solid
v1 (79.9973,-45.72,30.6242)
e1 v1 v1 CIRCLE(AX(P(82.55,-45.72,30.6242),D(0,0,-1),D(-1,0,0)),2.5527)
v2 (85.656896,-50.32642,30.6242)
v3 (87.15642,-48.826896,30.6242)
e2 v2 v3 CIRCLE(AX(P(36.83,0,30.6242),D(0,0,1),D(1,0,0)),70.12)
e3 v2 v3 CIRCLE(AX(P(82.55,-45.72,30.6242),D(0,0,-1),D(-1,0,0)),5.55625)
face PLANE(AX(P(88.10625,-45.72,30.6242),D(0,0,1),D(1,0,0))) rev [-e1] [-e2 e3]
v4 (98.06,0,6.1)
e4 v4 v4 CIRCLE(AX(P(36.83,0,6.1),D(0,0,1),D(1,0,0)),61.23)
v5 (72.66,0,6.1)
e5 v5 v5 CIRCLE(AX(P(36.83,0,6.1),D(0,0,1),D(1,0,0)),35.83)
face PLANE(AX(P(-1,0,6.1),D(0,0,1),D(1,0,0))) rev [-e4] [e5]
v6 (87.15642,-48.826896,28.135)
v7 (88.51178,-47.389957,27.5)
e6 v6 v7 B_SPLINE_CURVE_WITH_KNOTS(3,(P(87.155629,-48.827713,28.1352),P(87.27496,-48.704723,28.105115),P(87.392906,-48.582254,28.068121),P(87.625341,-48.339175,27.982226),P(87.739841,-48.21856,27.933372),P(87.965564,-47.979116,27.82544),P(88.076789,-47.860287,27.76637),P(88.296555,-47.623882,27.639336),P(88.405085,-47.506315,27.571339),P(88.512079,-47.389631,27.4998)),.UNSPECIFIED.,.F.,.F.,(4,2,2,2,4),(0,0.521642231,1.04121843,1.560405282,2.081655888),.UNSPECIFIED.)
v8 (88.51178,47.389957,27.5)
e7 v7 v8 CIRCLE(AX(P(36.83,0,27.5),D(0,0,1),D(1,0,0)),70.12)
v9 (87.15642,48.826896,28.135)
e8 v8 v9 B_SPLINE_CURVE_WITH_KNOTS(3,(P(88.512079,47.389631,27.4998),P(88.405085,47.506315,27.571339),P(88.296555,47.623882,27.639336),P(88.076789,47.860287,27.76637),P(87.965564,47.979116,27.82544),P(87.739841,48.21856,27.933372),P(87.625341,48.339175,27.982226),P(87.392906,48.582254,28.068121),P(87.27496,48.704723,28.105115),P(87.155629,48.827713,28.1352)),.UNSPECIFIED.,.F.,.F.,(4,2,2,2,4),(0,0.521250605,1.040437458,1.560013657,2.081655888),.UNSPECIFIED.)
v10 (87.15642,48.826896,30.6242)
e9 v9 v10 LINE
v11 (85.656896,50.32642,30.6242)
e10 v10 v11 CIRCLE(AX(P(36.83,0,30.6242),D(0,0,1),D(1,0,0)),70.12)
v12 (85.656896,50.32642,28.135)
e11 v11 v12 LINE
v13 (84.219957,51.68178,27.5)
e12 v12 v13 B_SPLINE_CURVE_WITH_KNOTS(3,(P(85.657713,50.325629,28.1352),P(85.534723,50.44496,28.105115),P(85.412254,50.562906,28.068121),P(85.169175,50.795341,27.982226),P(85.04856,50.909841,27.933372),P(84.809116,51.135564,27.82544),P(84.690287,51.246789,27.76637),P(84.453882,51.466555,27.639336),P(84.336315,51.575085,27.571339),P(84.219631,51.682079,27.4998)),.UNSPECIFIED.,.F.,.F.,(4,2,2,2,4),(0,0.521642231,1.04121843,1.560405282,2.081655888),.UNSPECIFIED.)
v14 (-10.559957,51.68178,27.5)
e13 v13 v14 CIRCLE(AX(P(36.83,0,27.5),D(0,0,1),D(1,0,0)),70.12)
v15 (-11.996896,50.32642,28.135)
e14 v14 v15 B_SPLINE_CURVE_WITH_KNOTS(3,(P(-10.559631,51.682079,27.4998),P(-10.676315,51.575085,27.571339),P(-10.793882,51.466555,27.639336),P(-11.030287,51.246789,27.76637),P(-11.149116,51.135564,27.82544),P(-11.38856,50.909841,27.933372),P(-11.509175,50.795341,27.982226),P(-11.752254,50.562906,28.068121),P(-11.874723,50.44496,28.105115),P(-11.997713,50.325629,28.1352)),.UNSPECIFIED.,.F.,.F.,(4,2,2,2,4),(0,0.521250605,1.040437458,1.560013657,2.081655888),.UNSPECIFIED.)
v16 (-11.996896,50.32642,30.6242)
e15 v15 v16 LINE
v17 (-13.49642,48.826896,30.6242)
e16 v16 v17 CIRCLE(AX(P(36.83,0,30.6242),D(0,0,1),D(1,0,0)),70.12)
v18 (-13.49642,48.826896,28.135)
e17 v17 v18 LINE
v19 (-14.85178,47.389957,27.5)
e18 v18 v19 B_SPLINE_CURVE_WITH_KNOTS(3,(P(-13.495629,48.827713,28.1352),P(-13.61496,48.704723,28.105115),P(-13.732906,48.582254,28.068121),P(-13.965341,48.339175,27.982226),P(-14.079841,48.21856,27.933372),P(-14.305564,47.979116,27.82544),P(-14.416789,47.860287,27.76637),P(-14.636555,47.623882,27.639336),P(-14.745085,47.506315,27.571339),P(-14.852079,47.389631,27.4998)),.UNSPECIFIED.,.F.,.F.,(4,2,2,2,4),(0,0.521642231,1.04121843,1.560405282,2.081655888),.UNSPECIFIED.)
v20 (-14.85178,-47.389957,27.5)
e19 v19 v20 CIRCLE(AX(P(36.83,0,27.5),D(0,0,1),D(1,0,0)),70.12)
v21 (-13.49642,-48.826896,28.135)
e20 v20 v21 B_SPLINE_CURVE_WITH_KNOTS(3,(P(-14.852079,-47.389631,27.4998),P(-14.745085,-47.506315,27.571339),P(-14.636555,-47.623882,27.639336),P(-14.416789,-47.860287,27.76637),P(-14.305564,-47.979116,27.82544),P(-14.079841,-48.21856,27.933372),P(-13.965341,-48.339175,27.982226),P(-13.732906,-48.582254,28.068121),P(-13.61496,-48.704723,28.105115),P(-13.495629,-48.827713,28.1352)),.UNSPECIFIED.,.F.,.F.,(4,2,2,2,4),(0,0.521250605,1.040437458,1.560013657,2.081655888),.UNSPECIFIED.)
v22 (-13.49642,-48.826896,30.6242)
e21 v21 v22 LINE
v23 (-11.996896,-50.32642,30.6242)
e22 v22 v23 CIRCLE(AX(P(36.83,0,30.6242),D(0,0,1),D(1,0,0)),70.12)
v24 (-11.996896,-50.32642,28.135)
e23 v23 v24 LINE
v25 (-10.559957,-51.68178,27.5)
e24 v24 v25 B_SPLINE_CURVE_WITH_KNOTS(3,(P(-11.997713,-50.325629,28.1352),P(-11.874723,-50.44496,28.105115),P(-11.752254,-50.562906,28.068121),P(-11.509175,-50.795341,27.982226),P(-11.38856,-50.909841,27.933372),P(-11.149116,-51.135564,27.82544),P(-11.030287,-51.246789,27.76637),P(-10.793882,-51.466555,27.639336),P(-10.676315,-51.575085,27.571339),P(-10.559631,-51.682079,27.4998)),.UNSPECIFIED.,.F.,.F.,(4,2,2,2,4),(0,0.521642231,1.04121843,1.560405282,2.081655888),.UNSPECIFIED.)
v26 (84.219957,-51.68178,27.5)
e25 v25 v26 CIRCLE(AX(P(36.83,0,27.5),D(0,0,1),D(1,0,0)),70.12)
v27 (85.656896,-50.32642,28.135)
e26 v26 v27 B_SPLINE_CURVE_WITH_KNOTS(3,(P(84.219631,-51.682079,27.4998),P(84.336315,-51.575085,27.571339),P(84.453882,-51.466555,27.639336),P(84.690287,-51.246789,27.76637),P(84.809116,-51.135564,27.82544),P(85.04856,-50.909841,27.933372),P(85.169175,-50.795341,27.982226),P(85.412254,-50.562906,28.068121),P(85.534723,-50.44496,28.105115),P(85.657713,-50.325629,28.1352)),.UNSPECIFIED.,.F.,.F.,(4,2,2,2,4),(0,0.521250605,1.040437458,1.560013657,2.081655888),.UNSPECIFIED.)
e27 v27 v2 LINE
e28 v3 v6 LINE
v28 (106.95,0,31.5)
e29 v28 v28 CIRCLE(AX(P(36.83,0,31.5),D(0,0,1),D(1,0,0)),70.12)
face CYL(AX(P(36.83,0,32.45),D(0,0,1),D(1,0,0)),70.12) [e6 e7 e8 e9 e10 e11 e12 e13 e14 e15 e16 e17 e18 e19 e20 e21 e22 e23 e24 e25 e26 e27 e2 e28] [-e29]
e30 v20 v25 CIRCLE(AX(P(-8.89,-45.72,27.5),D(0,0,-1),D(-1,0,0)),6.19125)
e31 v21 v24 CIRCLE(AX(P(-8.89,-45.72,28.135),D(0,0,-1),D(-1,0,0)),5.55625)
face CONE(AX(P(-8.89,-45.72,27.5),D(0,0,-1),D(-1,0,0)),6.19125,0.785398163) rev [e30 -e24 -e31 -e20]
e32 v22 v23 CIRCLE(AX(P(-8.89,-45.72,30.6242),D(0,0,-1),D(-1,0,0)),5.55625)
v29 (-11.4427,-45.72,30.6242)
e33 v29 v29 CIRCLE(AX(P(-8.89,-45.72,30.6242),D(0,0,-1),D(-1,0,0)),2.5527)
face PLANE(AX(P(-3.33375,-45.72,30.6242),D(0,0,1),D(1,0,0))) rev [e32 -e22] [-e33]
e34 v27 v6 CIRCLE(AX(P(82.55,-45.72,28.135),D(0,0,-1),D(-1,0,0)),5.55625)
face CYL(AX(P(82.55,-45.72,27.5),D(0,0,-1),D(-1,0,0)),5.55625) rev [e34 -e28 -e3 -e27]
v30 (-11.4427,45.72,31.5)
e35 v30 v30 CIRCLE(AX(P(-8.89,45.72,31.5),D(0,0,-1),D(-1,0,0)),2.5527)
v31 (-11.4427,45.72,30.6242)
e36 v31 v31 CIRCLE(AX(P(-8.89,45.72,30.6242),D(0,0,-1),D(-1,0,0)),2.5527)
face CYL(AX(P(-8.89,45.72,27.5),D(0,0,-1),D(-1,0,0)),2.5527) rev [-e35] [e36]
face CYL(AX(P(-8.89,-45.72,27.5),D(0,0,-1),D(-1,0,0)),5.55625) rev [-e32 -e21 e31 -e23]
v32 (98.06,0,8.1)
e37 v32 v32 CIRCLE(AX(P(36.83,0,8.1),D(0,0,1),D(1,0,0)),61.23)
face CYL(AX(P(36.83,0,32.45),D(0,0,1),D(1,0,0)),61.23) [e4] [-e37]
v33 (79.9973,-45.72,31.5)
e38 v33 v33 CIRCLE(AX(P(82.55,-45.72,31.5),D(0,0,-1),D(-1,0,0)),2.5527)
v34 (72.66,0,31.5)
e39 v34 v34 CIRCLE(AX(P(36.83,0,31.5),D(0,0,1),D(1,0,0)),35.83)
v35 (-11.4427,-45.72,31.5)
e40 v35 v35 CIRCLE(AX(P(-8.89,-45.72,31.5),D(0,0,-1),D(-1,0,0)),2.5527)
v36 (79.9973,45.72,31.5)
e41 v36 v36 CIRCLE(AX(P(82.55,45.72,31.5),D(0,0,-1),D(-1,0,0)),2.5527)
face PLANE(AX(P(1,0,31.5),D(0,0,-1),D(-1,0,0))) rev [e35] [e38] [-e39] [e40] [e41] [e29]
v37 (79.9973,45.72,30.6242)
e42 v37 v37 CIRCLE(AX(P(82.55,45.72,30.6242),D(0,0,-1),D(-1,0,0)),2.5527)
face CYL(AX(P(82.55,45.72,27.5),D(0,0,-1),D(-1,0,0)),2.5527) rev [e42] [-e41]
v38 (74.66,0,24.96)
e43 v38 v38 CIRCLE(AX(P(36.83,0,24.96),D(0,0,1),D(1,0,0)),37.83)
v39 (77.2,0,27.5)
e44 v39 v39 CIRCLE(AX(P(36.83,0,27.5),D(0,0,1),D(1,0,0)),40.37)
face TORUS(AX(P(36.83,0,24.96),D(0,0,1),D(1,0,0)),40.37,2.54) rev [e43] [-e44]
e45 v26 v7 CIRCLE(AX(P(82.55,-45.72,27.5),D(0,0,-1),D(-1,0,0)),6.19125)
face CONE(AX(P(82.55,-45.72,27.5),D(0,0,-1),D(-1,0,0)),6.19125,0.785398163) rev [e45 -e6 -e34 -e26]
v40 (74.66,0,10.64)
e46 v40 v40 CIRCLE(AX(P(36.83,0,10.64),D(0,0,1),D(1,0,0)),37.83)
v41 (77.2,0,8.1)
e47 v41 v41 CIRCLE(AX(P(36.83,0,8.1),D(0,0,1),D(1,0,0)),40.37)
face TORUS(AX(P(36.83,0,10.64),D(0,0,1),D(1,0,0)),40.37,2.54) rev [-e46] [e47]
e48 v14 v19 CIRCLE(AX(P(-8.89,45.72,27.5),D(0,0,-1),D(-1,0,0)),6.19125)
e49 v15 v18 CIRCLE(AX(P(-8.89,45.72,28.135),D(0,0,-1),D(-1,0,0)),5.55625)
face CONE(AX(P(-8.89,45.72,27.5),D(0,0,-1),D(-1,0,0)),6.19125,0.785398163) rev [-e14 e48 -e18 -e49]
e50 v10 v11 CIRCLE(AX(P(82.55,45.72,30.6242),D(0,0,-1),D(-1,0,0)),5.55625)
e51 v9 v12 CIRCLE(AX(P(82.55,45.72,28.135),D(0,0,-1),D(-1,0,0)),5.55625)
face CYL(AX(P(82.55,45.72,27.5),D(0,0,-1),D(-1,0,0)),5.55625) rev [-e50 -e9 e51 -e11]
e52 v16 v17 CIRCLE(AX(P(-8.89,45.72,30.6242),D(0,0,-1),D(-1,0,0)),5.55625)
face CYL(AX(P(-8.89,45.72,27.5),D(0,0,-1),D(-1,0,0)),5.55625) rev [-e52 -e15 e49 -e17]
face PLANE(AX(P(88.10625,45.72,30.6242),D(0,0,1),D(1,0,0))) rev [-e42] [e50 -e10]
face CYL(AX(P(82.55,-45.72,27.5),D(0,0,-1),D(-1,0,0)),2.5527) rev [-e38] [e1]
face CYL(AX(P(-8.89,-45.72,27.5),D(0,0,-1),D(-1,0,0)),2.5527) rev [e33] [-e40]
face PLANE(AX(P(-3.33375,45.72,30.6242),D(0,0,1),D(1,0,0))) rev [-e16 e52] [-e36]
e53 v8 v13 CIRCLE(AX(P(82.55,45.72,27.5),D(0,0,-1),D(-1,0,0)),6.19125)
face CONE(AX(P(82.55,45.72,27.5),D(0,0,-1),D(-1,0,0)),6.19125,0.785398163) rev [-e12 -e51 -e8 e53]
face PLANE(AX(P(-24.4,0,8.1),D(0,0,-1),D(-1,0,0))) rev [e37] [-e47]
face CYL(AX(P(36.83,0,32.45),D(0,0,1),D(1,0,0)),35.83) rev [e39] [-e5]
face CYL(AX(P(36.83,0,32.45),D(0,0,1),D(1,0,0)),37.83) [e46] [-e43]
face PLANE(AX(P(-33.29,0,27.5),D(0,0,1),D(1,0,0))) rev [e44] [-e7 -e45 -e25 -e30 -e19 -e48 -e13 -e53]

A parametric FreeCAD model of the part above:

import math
import FreeCAD as App
import Part
import Sketcher
from FreeCAD import Vector
Q = App.Units.Quantity


def add_polygon(sketch, points):
    """Adds a closed chain of lines whose ends are joined by coincident constraints."""
    first, n = sketch.GeometryCount, len(points)
    for a, b in zip(points, points[1:] + points[:1]):
        sketch.addGeometry(Part.LineSegment(App.Vector(*a, 0), App.Vector(*b, 0)), False)
    for i in range(n):
        sketch.addConstraint(Sketcher.Constraint("Coincident", first + i, 2, first + (i + 1) % n, 1))

doc = App.newDocument("Part")
body = doc.addObject("PartDesign::Body", "Body")

sketch1 = doc.addObject("Sketcher::SketchObject", "Sketch")
body.addObject(sketch1)
sketch1.AttachmentSupport = (doc.XZ_Plane, [""])
sketch1.MapMode = "FlatFace"
sketch1.addGeometry(Part.LineSegment(Vector(-1, 10.6, 0), Vector(-1, 25, 0)), False)
sketch1.addGeometry(Part.ArcOfCircle(Part.Circle(Vector(-3.5, 25, 0), Vector(0, 0, 1), 2.5), math.radians(0), math.radians(90)), False)
sketch1.addGeometry(Part.LineSegment(Vector(-3.5, 27.5, 0), Vector(-33.3, 27.5, 0)), False)
sketch1.addGeometry(Part.LineSegment(Vector(-33.3, 27.5, 0), Vector(-33.3, 31.5, 0)), False)
sketch1.addGeometry(Part.LineSegment(Vector(-33.3, 31.5, 0), Vector(1, 31.5, 0)), False)
sketch1.addGeometry(Part.LineSegment(Vector(1, 31.5, 0), Vector(1, 6.1, 0)), False)
sketch1.addGeometry(Part.LineSegment(Vector(1, 6.1, 0), Vector(-24.4, 6.1, 0)), False)
sketch1.addGeometry(Part.LineSegment(Vector(-24.4, 6.1, 0), Vector(-24.4, 8.1, 0)), False)
sketch1.addGeometry(Part.LineSegment(Vector(-24.4, 8.1, 0), Vector(-3.5, 8.1, 0)), False)
sketch1.addGeometry(Part.ArcOfCircle(Part.Circle(Vector(-3.5, 10.6, 0), Vector(0, 0, 1), 2.5), math.radians(-90), math.radians(0)), False)
sketch1.addGeometry(Part.LineSegment(Vector(36.8, 31.5, 0), Vector(36.8, 6.1, 0)), True)
sketch1.addConstraint(Sketcher.Constraint("Tangent", 0, 2, 1, 1))
sketch1.addConstraint(Sketcher.Constraint("Tangent", 1, 2, 2, 1))
sketch1.addConstraint(Sketcher.Constraint("Coincident", 2, 2, 3, 1))
sketch1.addConstraint(Sketcher.Constraint("Coincident", 3, 2, 4, 1))
sketch1.addConstraint(Sketcher.Constraint("Coincident", 4, 2, 5, 1))
sketch1.addConstraint(Sketcher.Constraint("Coincident", 5, 2, 6, 1))
sketch1.addConstraint(Sketcher.Constraint("Coincident", 6, 2, 7, 1))
sketch1.addConstraint(Sketcher.Constraint("Coincident", 7, 2, 8, 1))
sketch1.addConstraint(Sketcher.Constraint("Tangent", 8, 2, 9, 1))
sketch1.addConstraint(Sketcher.Constraint("Tangent", 9, 2, 0, 1))
sketch1.addConstraint(Sketcher.Constraint("Vertical", 0))
sketch1.addConstraint(Sketcher.Constraint("Horizontal", 2))
sketch1.addConstraint(Sketcher.Constraint("Vertical", 3))
sketch1.addConstraint(Sketcher.Constraint("Horizontal", 4))
sketch1.addConstraint(Sketcher.Constraint("Vertical", 5))
sketch1.addConstraint(Sketcher.Constraint("Horizontal", 6))
sketch1.addConstraint(Sketcher.Constraint("Vertical", 7))
sketch1.addConstraint(Sketcher.Constraint("Horizontal", 8))
sketch1.addConstraint(Sketcher.Constraint("Vertical", 10))
sketch1.addConstraint(Sketcher.Constraint("Equal", 1, 9))
sketch1.addConstraint(Sketcher.Constraint("Horizontal", 4, 2, 10, 1))
sketch1.addConstraint(Sketcher.Constraint("Horizontal", 6, 2, 10, 2))
sketch1.addConstraint(Sketcher.Constraint("Equal", 6, 5))
sketch1.addConstraint(Sketcher.Constraint("Radius", 1, Q("0.1 in")))
sketch1.addConstraint(Sketcher.Constraint("DistanceX", 6, 2, 6, 1, Q("1 in")))
sketch1.addConstraint(Sketcher.Constraint("DistanceX", 4, 1, 4, 2, Q("1.35 in")))
sketch1.addConstraint(Sketcher.Constraint("DistanceX", -1, 1, 10, 1, Q("1.45 in")))
sketch1.addConstraint(Sketcher.Constraint("DistanceX", 2, 2, 2, 1, 29.75))
sketch1.addConstraint(Sketcher.Constraint("DistanceY", 0, 1, 0, 2, 14.32))
sketch1.addConstraint(Sketcher.Constraint("DistanceY", 3, 1, 3, 2, 4.0))
sketch1.addConstraint(Sketcher.Constraint("DistanceX", 1, 3, -1, 1, 3.54))
sketch1.addConstraint(Sketcher.Constraint("DistanceY", -1, 1, 1, 3, 24.96))
revolution = doc.addObject("PartDesign::Revolution", "Revolution")
body.addObject(revolution)
revolution.Profile = sketch1
revolution.ReferenceAxis = (sketch1, ["Axis0"])
revolution.Angle = 360

sketch2 = doc.addObject("Sketcher::SketchObject", "Sketch001")
body.addObject(sketch2)
sketch2.AttachmentSupport = (doc.YZ_Plane, [""])
sketch2.MapMode = "FlatFace"
sketch2.AttachmentOffset = App.Placement(Vector(0, 0, 3.25 * 25.4), App.Rotation())
add_polygon(sketch2, [(45.7, 31.5), (45.7, 27.5), (51.9, 27.5), (51.3, 28.1), (51.3, 30.6), (48.3, 30.6), (48.3, 31.5)])
sketch2.addGeometry(Part.LineSegment(Vector(45.7, 27.5, 0), Vector(45.7, 31.5, 0)), True)
sketch2.addConstraint(Sketcher.Constraint("Vertical", 0))
sketch2.addConstraint(Sketcher.Constraint("Horizontal", 1))
sketch2.addConstraint(Sketcher.Constraint("Vertical", 3))
sketch2.addConstraint(Sketcher.Constraint("Horizontal", 4))
sketch2.addConstraint(Sketcher.Constraint("Vertical", 5))
sketch2.addConstraint(Sketcher.Constraint("Horizontal", 6))
sketch2.addConstraint(Sketcher.Constraint("Vertical", 7))
sketch2.addConstraint(Sketcher.Constraint("Coincident", 7, 1, 0, 2))
sketch2.addConstraint(Sketcher.Constraint("Horizontal", 5, 2, 7, 2))
sketch2.addConstraint(Sketcher.Constraint("Angle", 2, Q("135 deg")))
sketch2.addConstraint(Sketcher.Constraint("DistanceX", -1, 1, 0, 2, Q("1.8 in")))
sketch2.addConstraint(Sketcher.Constraint("DistanceY", 3, 1, 3, 2, Q("0.098 in")))
sketch2.addConstraint(Sketcher.Constraint("DistanceX", 6, 2, 6, 1, Q("0.1005 in")))
sketch2.addConstraint(Sketcher.Constraint("DistanceX", 2, 2, 1, 2, Q("0.025 in")))
sketch2.addConstraint(Sketcher.Constraint("DistanceX", 0, 2, 2, 2, Q("0.21875 in")))
sketch2.addConstraint(Sketcher.Constraint("DistanceY", 0, 2, 0, 1, 4.0))
sketch2.addConstraint(Sketcher.Constraint("DistanceY", -1, 1, 0, 2, 27.5))
groove = doc.addObject("PartDesign::Groove", "Groove")
body.addObject(groove)
groove.Profile = sketch2
groove.ReferenceAxis = (sketch2, ["Axis0"])
groove.Angle = 360
doc.recompute()

linearpattern = doc.addObject("PartDesign::LinearPattern", "LinearPattern")
body.addObject(linearpattern)
linearpattern.Originals = [groove]
linearpattern.Direction = (doc.X_Axis, [""])
linearpattern.Mode = "offset"
linearpattern.Offset = Q("3.6 in")
linearpattern.Occurrences = 2
linearpattern.Reversed = True
body.Tip = linearpattern
doc.recompute()

datumline = doc.addObject("PartDesign::Line", "DatumLine")
body.addObject(datumline)
datumline.Placement = App.Placement(Vector(0, 0, 0), App.Rotation(Vector(0, 0, 1), Vector(-0.707106781, -0.707106781, 0)))
linearpattern2 = doc.addObject("PartDesign::LinearPattern", "LinearPattern001")
body.addObject(linearpattern2)
linearpattern2.Originals = [groove]
linearpattern2.Direction = (datumline, [""])
linearpattern2.Mode = "offset"
linearpattern2.Offset = 129.315688
linearpattern2.Occurrences = 2
body.Tip = linearpattern2
doc.recompute()

linearpattern3 = doc.addObject("PartDesign::LinearPattern", "LinearPattern002")
body.addObject(linearpattern3)
linearpattern3.Originals = [groove]
linearpattern3.Direction = (doc.Y_Axis, [""])
linearpattern3.Mode = "offset"
linearpattern3.Offset = Q("3.6 in")
linearpattern3.Occurrences = 2
linearpattern3.Reversed = True
body.Tip = linearpattern3

doc.recompute()
